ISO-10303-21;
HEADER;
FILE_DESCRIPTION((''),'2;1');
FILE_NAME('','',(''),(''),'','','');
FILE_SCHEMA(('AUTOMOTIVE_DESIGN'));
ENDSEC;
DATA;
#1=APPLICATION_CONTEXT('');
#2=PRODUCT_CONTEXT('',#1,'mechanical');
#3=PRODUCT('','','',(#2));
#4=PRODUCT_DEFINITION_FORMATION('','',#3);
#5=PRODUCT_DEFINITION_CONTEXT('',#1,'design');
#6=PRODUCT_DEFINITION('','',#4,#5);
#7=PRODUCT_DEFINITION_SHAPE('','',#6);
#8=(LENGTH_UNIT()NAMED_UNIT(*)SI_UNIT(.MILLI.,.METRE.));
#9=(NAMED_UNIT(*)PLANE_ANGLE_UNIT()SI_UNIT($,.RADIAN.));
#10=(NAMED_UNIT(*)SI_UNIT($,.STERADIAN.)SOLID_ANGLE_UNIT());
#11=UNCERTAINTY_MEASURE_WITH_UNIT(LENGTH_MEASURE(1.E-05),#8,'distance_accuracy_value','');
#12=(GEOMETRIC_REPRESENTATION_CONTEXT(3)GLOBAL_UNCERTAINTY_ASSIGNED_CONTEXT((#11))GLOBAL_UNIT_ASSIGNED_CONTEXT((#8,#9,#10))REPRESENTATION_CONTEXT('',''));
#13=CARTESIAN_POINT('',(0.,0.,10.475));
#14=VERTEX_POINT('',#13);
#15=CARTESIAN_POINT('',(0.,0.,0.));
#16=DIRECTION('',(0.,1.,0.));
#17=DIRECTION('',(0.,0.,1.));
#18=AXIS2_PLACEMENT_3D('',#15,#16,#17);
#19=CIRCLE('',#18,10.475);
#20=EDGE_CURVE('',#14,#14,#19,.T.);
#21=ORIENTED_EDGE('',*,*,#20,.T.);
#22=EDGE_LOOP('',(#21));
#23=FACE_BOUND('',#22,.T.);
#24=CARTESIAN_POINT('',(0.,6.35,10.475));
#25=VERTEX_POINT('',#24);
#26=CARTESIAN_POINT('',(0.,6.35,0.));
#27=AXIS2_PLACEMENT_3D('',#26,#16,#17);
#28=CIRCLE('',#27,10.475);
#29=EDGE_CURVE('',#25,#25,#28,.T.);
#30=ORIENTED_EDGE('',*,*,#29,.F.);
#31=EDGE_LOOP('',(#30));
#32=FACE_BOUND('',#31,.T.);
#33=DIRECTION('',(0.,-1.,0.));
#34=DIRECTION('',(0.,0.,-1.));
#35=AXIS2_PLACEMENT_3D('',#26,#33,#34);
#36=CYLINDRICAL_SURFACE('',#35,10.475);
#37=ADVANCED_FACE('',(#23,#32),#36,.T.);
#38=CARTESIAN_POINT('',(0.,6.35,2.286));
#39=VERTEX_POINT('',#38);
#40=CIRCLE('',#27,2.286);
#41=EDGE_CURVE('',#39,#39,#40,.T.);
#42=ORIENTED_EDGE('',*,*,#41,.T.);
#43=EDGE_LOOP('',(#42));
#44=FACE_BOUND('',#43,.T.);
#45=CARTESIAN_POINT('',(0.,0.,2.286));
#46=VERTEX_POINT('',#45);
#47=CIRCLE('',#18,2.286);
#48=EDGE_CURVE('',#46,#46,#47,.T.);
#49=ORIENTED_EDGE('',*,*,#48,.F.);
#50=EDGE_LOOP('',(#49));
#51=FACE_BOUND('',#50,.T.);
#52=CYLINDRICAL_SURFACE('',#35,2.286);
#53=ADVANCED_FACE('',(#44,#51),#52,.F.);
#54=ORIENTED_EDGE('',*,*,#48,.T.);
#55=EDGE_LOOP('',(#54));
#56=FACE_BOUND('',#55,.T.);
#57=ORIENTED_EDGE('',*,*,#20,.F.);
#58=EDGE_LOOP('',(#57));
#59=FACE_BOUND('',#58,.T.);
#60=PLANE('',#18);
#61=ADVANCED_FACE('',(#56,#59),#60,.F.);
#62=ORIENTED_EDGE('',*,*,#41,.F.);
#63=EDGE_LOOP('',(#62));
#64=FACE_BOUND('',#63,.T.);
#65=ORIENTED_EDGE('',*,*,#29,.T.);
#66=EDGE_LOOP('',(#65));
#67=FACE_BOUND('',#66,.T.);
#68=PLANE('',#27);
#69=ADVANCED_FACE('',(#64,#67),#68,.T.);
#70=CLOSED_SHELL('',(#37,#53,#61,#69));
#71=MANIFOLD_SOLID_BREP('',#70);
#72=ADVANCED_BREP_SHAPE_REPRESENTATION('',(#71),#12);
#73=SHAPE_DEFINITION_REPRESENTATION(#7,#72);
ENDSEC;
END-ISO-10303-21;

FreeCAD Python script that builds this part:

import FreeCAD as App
import Part
import Sketcher

V = App.Vector
Q = App.Units.Quantity

doc = App.newDocument("Part")
body = doc.addObject("PartDesign::Body", "Body")

# Sketch on XZ plane
sketch1 = doc.addObject("Sketcher::SketchObject", "Sketch")
body.addObject(sketch1)
sketch1.AttachmentSupport = (doc.XZ_Plane, [""])
sketch1.MapMode = "FlatFace"
sketch1.addGeometry(Part.Circle(V(0, 0, 0), V(0, 0, 1), 10), False)
sketch1.addGeometry(Part.Circle(V(0, 0, 0), V(0, 0, 1), 8), False)
sketch1.addConstraint(Sketcher.Constraint("Coincident", 0, 3, -1, 1))
sketch1.addConstraint(Sketcher.Constraint("Coincident", 1, 3, -1, 1))
sketch1.addConstraint(Sketcher.Constraint("Diameter", 1, Q("0.6 in")))
sketch1.addConstraint(Sketcher.Constraint("Diameter", 0, Q("20.95 mm")))
pad1 = doc.addObject("PartDesign::Pad", "Pad")
body.addObject(pad1)
pad1.Profile = sketch1
pad1.Length = Q("0.25 in")
pad1.Reversed = True

# Sketch on XZ plane
sketch2 = doc.addObject("Sketcher::SketchObject", "Sketch001")
body.addObject(sketch2)
sketch2.AttachmentSupport = (doc.XZ_Plane, [""])
sketch2.MapMode = "FlatFace"
sketch2.addGeometry(Part.Circle(V(0, 0, 0), V(0, 0, 1), 7.6), False)
sketch2.addGeometry(Part.Circle(V(0, 0, 0), V(0, 0, 1), 2.3), False)
sketch2.addConstraint(Sketcher.Constraint("Coincident", 0, 3, -1, 1))
sketch2.addConstraint(Sketcher.Constraint("Coincident", 1, 3, -1, 1))
sketch2.addConstraint(Sketcher.Constraint("Diameter", 0, Q("0.6 in")))
sketch2.addConstraint(Sketcher.Constraint("Diameter", 1, Q("0.18 in")))
pad2 = doc.addObject("PartDesign::Pad", "Pad001")
body.addObject(pad2)
pad2.Profile = sketch2
pad2.Length = Q("0.25 in")
pad2.Reversed = True

doc.recompute()
